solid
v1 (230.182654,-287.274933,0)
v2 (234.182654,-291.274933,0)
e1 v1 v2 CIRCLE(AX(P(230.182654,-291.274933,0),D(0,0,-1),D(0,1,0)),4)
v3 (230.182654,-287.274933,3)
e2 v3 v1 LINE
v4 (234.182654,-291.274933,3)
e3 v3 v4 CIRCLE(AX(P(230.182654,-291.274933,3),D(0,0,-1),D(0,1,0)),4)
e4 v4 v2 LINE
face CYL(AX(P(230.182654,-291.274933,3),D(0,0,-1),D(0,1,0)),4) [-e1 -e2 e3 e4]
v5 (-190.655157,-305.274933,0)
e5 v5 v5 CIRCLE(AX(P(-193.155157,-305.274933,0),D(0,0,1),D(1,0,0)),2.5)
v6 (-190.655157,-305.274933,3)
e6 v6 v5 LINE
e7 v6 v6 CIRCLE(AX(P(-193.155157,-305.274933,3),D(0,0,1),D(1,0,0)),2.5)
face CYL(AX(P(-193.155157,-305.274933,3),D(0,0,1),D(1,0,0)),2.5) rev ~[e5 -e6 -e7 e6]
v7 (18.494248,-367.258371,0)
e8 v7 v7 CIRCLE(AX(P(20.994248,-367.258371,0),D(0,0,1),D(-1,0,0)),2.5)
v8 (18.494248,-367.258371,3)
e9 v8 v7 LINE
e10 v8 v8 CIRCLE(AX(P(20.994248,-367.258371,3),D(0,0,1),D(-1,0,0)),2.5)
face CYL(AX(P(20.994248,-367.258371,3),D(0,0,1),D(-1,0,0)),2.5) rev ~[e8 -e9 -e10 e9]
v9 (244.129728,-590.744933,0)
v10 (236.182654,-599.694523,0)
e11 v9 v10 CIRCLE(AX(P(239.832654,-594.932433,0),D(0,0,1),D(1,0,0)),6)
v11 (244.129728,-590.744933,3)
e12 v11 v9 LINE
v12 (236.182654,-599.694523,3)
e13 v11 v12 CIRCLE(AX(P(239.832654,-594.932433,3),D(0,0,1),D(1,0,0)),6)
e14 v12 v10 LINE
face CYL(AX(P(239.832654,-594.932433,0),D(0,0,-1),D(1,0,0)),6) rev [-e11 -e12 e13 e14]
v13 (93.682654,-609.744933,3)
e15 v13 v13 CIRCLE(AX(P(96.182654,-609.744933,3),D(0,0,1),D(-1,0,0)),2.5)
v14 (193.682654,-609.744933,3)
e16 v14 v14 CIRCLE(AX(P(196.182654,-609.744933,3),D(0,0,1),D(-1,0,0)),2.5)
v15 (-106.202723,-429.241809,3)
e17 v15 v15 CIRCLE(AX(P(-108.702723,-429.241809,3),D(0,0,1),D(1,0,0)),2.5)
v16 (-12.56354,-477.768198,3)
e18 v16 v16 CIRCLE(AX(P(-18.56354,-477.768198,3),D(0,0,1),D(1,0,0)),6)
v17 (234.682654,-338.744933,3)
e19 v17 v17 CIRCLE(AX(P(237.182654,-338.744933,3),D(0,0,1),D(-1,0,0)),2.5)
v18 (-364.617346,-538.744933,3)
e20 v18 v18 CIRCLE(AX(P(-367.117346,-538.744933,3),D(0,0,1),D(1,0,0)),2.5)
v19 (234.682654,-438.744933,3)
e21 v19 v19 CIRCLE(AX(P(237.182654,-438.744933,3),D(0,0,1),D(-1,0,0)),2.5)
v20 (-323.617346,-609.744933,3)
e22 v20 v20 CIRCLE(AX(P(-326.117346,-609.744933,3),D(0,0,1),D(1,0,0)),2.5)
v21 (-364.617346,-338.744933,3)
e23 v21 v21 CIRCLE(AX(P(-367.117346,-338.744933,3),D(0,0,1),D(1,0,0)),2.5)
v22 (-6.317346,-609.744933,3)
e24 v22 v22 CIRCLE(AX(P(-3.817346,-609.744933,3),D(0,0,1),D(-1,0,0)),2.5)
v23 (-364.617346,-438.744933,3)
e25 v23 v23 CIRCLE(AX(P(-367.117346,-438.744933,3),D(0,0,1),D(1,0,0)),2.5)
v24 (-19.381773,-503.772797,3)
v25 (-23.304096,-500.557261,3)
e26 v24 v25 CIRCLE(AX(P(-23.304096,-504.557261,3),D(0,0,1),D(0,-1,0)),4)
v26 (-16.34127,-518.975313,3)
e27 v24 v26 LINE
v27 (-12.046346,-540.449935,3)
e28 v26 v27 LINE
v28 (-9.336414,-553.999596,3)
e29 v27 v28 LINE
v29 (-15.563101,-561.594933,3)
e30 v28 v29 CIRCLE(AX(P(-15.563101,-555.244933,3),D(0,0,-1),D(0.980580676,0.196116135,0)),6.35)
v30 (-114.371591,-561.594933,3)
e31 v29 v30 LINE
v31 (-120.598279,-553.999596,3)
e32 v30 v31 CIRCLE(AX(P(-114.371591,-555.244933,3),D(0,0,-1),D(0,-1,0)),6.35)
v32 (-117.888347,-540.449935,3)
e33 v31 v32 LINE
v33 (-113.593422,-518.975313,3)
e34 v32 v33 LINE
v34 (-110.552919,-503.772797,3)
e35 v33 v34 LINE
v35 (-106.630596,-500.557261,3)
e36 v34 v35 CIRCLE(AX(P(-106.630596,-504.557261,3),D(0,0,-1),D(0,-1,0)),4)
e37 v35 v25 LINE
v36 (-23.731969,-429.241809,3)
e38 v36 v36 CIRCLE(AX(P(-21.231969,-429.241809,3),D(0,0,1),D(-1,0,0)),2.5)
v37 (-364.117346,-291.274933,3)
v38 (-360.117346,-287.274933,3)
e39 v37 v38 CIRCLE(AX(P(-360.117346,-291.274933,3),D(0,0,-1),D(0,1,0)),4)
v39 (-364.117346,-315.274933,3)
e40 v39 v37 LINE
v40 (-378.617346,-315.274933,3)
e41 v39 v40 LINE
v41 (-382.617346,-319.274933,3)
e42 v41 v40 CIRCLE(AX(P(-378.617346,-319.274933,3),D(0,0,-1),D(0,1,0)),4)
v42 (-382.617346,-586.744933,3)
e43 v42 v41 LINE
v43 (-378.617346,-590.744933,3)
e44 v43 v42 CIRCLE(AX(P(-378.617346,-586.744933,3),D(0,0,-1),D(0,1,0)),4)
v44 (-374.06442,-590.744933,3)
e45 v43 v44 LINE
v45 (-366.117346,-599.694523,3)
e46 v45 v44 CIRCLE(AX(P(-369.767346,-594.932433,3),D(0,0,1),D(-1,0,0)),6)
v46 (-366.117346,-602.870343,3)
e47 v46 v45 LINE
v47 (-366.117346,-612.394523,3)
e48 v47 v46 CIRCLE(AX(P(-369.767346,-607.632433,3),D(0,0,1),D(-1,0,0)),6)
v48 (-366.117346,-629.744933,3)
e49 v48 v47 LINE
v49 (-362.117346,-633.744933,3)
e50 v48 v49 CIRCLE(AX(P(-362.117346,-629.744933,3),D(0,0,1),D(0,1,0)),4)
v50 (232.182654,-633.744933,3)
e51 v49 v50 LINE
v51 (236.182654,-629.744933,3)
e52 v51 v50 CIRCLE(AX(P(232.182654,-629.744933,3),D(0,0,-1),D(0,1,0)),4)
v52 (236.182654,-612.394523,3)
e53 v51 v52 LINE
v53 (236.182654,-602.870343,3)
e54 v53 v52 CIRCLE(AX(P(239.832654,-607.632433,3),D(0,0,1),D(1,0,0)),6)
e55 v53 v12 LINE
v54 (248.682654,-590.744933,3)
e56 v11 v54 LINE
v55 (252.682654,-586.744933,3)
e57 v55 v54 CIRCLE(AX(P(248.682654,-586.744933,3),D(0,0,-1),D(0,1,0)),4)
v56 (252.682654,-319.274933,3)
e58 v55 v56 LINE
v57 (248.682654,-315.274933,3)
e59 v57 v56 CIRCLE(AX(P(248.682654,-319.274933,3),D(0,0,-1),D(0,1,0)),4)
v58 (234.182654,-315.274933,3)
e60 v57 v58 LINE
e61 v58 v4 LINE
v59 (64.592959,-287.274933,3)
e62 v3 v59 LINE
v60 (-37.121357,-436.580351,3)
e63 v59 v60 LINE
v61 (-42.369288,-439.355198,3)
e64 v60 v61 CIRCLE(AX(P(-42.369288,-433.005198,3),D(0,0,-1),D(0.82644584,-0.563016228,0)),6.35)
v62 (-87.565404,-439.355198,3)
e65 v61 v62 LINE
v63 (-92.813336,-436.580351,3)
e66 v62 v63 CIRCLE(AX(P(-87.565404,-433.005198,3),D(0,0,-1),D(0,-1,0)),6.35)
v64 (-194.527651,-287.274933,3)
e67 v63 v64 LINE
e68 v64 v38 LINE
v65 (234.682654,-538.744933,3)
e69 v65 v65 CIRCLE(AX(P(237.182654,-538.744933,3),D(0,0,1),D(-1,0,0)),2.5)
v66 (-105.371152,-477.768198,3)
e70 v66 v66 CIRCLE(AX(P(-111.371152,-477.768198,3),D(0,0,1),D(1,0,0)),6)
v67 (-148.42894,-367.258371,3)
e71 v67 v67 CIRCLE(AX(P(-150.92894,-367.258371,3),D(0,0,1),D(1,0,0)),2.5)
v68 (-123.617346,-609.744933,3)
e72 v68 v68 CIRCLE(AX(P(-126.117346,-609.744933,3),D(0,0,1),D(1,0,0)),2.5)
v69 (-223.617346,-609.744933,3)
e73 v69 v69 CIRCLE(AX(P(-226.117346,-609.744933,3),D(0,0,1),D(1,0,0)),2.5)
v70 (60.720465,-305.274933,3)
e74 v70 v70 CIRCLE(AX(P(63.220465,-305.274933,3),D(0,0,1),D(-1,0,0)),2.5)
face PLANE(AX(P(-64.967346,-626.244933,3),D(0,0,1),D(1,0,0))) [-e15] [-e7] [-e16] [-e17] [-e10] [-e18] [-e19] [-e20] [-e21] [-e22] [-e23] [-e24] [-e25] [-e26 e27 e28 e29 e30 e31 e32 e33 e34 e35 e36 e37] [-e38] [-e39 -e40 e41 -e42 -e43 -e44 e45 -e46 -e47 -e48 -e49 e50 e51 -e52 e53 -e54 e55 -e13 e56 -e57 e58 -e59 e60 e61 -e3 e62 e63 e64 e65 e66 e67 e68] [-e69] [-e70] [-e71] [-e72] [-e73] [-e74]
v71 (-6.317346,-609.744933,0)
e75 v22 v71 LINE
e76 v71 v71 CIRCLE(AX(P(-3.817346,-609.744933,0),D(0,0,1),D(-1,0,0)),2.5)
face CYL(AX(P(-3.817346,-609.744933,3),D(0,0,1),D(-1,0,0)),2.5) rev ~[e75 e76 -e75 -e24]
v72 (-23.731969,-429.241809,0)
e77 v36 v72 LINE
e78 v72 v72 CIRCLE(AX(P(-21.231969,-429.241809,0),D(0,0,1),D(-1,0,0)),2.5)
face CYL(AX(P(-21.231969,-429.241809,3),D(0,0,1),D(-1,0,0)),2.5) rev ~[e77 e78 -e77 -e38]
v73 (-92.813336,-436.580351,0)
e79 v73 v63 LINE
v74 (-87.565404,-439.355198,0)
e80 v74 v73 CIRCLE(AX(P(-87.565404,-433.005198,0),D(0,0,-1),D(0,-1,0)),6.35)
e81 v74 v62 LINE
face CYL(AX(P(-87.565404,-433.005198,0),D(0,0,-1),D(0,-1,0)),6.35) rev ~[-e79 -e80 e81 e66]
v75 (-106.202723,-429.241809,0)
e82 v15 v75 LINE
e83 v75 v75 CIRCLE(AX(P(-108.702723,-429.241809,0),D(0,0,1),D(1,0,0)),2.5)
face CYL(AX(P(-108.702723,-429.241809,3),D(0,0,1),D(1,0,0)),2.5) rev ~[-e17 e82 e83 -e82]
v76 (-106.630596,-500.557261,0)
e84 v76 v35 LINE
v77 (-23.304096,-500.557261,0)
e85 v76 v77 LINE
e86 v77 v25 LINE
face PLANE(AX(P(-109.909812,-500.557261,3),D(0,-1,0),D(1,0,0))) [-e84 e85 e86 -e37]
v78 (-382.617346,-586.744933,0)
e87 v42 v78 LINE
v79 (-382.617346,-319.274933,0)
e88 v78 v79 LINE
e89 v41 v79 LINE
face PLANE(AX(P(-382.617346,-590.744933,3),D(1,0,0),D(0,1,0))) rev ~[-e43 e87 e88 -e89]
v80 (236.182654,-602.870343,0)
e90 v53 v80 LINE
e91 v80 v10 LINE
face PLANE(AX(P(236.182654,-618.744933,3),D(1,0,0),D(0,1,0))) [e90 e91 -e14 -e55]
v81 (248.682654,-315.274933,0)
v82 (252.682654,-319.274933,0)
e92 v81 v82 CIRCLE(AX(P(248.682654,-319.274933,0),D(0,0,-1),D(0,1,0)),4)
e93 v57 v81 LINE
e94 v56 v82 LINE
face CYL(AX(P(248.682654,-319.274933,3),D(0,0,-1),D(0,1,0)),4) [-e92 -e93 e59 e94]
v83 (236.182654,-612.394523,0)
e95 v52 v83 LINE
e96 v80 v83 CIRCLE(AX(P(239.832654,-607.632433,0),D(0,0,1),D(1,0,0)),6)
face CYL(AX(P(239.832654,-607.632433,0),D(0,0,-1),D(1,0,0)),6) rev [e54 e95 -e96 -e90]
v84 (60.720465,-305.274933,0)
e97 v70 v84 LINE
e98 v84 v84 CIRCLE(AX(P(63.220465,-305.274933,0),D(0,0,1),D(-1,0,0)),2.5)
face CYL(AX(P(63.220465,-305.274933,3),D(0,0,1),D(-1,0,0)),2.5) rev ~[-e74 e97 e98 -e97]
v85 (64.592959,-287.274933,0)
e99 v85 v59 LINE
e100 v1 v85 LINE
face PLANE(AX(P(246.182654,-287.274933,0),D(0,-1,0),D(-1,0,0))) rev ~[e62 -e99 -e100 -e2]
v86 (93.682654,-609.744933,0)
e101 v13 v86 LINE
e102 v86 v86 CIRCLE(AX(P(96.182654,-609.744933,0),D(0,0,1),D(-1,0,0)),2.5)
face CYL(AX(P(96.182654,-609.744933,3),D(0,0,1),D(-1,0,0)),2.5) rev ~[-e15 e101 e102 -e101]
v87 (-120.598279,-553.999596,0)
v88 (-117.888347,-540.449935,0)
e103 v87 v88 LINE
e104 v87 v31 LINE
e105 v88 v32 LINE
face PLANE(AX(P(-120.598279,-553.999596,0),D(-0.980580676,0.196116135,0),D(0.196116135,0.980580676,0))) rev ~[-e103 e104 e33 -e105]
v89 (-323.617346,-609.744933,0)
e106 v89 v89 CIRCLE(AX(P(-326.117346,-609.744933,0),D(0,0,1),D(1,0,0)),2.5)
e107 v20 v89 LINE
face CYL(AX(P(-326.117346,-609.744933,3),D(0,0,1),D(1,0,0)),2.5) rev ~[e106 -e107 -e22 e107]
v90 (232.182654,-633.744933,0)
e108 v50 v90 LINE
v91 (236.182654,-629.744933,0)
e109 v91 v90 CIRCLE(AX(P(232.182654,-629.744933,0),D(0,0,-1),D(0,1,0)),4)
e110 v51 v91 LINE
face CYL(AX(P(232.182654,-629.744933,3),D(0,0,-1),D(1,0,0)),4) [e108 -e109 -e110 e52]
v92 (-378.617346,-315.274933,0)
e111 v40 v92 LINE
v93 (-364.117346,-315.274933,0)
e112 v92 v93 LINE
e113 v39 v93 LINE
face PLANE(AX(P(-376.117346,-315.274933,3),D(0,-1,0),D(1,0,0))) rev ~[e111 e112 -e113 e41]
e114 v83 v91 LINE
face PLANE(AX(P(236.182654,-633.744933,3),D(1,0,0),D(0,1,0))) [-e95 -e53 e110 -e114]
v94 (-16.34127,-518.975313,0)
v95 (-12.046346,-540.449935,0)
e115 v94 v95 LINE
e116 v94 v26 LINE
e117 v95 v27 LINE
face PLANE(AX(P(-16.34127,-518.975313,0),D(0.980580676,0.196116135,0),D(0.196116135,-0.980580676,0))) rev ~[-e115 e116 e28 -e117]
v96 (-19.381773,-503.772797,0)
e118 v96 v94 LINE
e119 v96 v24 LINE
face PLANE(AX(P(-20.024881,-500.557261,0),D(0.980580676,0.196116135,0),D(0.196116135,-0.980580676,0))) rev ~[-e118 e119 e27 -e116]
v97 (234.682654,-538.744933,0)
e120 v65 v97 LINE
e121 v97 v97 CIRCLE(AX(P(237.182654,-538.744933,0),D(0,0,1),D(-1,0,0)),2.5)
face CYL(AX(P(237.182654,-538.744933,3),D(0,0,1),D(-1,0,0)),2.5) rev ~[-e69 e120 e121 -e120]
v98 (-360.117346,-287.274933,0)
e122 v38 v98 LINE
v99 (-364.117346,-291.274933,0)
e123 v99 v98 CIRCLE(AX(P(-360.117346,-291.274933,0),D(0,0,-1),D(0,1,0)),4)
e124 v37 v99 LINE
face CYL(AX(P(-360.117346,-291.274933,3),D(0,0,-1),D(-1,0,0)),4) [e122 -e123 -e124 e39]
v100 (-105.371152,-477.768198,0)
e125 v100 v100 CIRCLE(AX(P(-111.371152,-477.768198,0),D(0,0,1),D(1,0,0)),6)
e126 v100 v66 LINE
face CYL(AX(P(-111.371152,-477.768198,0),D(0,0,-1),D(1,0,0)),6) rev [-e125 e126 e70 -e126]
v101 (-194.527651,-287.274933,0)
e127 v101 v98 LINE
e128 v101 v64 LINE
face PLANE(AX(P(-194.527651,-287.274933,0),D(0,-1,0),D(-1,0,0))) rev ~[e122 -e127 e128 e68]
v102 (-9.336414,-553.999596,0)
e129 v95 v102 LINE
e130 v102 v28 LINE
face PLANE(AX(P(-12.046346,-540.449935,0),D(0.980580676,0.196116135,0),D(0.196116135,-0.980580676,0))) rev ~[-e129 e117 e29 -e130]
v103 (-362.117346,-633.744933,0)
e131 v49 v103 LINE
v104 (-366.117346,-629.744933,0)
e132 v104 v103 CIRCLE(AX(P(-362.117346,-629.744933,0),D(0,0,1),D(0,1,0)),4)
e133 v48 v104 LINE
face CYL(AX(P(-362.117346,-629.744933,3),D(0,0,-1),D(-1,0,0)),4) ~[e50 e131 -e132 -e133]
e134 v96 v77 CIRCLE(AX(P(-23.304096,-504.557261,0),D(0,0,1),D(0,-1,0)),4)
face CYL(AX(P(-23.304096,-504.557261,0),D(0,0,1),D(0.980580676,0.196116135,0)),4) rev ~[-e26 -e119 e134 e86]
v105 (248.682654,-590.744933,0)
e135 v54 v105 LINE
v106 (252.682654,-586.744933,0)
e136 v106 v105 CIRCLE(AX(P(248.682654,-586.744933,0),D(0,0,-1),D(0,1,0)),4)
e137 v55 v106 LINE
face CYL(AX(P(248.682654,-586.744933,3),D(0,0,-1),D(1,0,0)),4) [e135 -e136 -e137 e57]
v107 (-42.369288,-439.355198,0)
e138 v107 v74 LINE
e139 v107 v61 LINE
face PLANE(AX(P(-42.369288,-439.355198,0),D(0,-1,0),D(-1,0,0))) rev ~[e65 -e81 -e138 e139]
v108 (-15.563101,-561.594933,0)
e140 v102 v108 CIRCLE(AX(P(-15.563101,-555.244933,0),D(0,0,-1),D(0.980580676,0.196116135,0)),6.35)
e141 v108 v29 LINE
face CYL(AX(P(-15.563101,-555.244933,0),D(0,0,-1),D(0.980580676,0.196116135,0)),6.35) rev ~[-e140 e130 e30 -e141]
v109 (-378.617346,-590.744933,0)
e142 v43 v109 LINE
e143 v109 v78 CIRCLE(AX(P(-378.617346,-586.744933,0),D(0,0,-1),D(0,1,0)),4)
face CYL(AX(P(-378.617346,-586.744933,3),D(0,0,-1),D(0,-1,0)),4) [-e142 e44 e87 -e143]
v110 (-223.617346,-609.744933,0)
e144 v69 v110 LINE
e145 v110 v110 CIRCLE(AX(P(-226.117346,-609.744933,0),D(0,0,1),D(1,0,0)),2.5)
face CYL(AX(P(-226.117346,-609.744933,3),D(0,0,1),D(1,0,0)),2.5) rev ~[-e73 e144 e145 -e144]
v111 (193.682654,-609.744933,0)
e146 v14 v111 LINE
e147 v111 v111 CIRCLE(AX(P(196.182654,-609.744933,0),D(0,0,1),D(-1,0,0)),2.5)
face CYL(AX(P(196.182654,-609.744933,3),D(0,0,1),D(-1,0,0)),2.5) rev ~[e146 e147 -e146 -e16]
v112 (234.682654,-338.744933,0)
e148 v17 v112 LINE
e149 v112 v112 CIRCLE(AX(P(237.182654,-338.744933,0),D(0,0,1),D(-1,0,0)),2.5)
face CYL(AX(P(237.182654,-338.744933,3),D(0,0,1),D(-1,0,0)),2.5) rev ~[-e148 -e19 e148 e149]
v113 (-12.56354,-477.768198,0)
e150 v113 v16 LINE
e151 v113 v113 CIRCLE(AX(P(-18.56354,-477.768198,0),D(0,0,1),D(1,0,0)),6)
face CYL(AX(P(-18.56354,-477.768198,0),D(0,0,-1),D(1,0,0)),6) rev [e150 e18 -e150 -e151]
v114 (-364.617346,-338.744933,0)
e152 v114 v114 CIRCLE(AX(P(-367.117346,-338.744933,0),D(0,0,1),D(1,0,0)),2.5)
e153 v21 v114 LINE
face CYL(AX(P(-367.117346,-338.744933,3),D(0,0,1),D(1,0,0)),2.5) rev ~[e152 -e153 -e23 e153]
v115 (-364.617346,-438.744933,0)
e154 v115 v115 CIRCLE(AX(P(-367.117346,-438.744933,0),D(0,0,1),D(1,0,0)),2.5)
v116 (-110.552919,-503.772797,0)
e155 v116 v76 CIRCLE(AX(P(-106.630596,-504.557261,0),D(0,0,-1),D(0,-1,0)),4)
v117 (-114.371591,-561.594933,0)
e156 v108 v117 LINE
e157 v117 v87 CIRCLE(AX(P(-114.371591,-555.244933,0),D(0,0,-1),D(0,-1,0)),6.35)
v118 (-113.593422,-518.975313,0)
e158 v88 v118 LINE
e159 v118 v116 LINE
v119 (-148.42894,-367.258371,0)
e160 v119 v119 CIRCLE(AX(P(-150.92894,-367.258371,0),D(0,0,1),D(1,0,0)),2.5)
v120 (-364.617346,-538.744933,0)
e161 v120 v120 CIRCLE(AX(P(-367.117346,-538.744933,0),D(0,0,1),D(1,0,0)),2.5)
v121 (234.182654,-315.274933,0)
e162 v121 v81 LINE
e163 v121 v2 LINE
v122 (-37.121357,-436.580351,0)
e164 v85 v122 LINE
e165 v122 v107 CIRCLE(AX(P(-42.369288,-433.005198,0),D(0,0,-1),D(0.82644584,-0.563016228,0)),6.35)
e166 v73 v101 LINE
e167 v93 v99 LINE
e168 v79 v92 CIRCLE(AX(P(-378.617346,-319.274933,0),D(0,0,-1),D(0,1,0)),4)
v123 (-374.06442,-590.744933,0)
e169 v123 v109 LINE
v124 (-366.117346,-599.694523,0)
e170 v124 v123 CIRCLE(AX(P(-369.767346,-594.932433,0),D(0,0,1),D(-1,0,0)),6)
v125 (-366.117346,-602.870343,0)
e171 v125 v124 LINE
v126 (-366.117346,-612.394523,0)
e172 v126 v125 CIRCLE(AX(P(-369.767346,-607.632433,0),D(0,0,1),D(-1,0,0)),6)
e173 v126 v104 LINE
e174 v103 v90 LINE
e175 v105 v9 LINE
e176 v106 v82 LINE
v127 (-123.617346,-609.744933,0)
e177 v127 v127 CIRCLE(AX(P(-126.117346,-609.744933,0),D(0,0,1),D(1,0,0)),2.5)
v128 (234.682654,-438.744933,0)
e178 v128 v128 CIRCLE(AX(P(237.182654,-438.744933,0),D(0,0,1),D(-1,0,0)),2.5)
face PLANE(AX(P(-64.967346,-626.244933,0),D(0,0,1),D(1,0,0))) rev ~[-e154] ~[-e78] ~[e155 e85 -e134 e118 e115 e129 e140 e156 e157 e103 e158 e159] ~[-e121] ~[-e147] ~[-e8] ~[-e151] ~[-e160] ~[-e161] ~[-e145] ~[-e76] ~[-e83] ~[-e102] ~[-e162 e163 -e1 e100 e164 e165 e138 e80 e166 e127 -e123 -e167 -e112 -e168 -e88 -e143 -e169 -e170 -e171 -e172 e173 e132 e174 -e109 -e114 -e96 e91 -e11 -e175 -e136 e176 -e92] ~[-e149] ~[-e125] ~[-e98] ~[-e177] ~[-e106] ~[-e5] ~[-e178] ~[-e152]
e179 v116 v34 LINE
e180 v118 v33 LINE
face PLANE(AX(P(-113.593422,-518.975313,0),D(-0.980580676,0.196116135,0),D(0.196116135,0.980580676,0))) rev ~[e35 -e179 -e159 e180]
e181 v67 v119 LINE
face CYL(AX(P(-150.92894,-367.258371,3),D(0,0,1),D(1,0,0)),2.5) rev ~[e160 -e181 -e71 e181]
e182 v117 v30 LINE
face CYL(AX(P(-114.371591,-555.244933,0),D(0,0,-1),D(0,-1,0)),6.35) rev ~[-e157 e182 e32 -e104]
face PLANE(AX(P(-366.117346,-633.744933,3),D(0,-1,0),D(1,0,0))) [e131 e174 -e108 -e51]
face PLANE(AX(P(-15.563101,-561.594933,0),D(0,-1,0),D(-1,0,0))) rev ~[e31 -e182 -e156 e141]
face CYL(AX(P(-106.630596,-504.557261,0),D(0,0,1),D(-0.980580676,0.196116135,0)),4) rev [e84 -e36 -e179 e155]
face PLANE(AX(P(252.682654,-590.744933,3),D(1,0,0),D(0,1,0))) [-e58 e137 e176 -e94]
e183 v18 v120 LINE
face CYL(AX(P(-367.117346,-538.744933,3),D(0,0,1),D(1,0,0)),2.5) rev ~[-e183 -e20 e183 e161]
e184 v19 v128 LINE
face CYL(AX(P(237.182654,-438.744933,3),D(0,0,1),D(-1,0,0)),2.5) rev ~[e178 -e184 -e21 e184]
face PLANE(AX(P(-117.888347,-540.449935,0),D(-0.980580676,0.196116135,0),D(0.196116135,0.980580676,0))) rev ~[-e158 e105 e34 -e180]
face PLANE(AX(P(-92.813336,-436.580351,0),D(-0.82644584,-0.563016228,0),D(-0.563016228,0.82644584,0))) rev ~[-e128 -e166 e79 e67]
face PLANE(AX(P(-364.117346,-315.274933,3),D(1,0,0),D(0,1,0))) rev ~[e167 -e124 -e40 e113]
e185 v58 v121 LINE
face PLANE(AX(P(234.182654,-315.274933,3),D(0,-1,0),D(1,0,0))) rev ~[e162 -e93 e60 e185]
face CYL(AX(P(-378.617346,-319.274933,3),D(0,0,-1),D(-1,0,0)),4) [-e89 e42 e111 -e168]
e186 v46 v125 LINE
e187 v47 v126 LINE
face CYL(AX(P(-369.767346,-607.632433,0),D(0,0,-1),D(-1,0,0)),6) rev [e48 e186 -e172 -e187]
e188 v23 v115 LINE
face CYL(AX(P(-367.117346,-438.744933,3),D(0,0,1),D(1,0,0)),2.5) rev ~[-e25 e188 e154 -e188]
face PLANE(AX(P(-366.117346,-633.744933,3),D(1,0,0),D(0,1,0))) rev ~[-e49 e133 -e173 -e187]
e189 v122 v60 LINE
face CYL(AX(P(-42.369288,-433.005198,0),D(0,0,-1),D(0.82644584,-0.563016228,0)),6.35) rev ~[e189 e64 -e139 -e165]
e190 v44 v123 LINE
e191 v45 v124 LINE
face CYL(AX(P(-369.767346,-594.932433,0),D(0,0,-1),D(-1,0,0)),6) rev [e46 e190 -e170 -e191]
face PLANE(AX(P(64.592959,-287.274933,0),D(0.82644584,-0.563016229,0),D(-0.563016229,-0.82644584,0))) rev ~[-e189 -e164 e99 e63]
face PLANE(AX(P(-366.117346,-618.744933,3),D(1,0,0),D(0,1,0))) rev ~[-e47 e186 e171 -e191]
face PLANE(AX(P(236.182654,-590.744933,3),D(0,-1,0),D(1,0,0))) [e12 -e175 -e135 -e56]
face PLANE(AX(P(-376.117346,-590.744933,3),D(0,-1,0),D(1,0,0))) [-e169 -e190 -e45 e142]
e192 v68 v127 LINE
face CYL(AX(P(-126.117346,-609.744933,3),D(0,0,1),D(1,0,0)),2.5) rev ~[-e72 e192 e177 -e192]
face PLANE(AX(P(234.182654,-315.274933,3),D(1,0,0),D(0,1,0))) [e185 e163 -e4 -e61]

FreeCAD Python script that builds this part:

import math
import FreeCAD as App
import Part
import Sketcher

V = App.Vector
Q = App.Units.Quantity


def edges_at(feature, points):
    """Names of the edges that pass closest to the given points."""
    edges = feature.Shape.Edges
    near = lambda p: min(range(len(edges)), key=lambda i: edges[i].distToShape(Part.Vertex(*p))[0])
    return sorted({f"Edge{near(p) + 1}" for p in points})


def add_polygon(sketch, points):
    """Adds a closed chain of lines whose ends are joined by coincident constraints."""
    first, n = sketch.GeometryCount, len(points)
    for a, b in zip(points, points[1:] + points[:1]):
        sketch.addGeometry(Part.LineSegment(App.Vector(*a, 0), App.Vector(*b, 0)), False)
    for i in range(n):
        sketch.addConstraint(Sketcher.Constraint("Coincident", first + i, 2, first + (i + 1) % n, 1))

doc = App.newDocument("Part")
params = doc.addObject("Spreadsheet::Sheet", "Params")
for row, (alias, value) in enumerate([
    ("sketch1_diameter", "12 mm"),
    ("sketch1_radius", "6.35 mm"),
    ("sketch1_width", "609.6 mm"),
    ("sketch1_height", "325.12 mm"),
    ("pad1_length", "3 mm"),
    ("sketch2_diameter", "5 mm"),
    ("sketch2_width", "12 mm"),
    ("sketch2_width2", "10 mm"),
    ("sketch2_height", "28 mm"),
    ("sketch3_width", "6.5 mm"),
    ("sketch3_height", "275.47 mm"),
    ("pad2_length", "3 mm"),
    ("sketch4_height", "15 mm"),
    ("sketch4_width", "602.3 mm"),
    ("pad3_length", "3 mm"),
    ("fillet_radius", "4 mm"),
], start=1):
    params.set(f"A{row}", alias)
    params.set(f"B{row}", "=" + value)
    params.setAlias(f"B{row}", alias)

body = doc.addObject("PartDesign::Body", "Body")

sketch1 = body.newObject("Sketcher::SketchObject", "Sketch")
sketch1.AttachmentSupport = (doc.getObject("XY_Plane"), [""])
sketch1.MapMode = "FlatFace"
sketch1.addGeometry(Part.LineSegment(V(64.6, -287.3, 0), V(-37.1, -436.6, 0)), False)
sketch1.addGeometry(Part.ArcOfCircle(Part.Circle(V(-42.4, -433, 0), V(0, 0, 1), 6.3), math.radians(-90), math.radians(-34)), False)
sketch1.addGeometry(Part.LineSegment(V(-42.4, -439.4, 0), V(-87.6, -439.4, 0)), False)
sketch1.addGeometry(Part.ArcOfCircle(Part.Circle(V(-87.6, -433, 0), V(0, 0, 1), 6.4), math.radians(-146), math.radians(-90)), False)
sketch1.addGeometry(Part.LineSegment(V(-92.8, -436.6, 0), V(-194.5, -287.3, 0)), False)
sketch1.addGeometry(Part.LineSegment(V(-194.5, -287.3, 0), V(-376.1, -287.3, 0)), False)
sketch1.addGeometry(Part.LineSegment(V(-376.1, -287.3, 0), V(-376.1, -612.4, 0)), False)
sketch1.addGeometry(Part.ArcOfCircle(Part.Circle(V(-369.8, -612.4, 0), V(0, 0, 1), 6.3), math.radians(180), math.radians(270)), False)
sketch1.addGeometry(Part.LineSegment(V(-369.8, -618.7, 0), V(239.8, -618.7, 0)), False)
sketch1.addGeometry(Part.ArcOfCircle(Part.Circle(V(239.8, -612.4, 0), V(0, 0, 1), 6.3), math.radians(-90), math.radians(0)), False)
sketch1.addGeometry(Part.LineSegment(V(246.2, -612.4, 0), V(246.2, -287.3, 0)), False)
sketch1.addGeometry(Part.LineSegment(V(246.2, -287.3, 0), V(64.6, -287.3, 0)), False)
sketch1.addGeometry(Part.Circle(V(-369.8, -607.6, 0), V(0, 0, 1), 6), False)
sketch1.addGeometry(Part.Circle(V(-369.8, -594.9, 0), V(0, 0, 1), 6), False)
sketch1.addGeometry(Part.Circle(V(239.8, -607.6, 0), V(0, 0, 1), 6), False)
sketch1.addGeometry(Part.Circle(V(239.8, -594.9, 0), V(0, 0, 1), 6), False)
sketch1.addGeometry(Part.Circle(V(-111.4, -477.8, 0), V(0, 0, 1), 6), False)
sketch1.addGeometry(Part.ArcOfCircle(Part.Circle(V(-114.4, -555.2, 0), V(0, 0, 1), 6.3), math.radians(169), math.radians(270)), False)
sketch1.addGeometry(Part.LineSegment(V(-120.6, -554, 0), V(-117.9, -540.4, 0)), False)
sketch1.addGeometry(Part.LineSegment(V(-117.9, -540.4, 0), V(-113.6, -519, 0)), False)
sketch1.addGeometry(Part.LineSegment(V(-113.6, -519, 0), V(-109.9, -500.6, 0)), False)
sketch1.addGeometry(Part.ArcOfCircle(Part.Circle(V(-103.7, -501.8, 0), V(0, 0, 1), 6.4), math.radians(126), math.radians(169)), False)
sketch1.addGeometry(Part.LineSegment(V(-107.4, -496.6, 0), V(-68.7, -469, 0)), False)
sketch1.addGeometry(Part.ArcOfCircle(Part.Circle(V(-65, -474.1, 0), V(0, 0, 1), 6.3), math.radians(54), math.radians(126)), False)
sketch1.addGeometry(Part.LineSegment(V(-61.3, -469, 0), V(-22.6, -496.6, 0)), False)
sketch1.addGeometry(Part.ArcOfCircle(Part.Circle(V(-26.3, -501.8, 0), V(0, 0, 1), 6.4), math.radians(11), math.radians(54)), False)
sketch1.addGeometry(Part.LineSegment(V(-20, -500.6, 0), V(-16.3, -519, 0)), False)
sketch1.addGeometry(Part.LineSegment(V(-16.3, -519, 0), V(-12, -540.4, 0)), False)
sketch1.addGeometry(Part.LineSegment(V(-12, -540.4, 0), V(-9.3, -554, 0)), False)
sketch1.addGeometry(Part.ArcOfCircle(Part.Circle(V(-15.6, -555.2, 0), V(0, 0, 1), 6.3), math.radians(-90), math.radians(11)), False)
sketch1.addGeometry(Part.LineSegment(V(-15.6, -561.6, 0), V(-114.4, -561.6, 0)), False)
sketch1.addGeometry(Part.Circle(V(-18.6, -477.8, 0), V(0, 0, 1), 6), False)
sketch1.addConstraint(Sketcher.Constraint("Tangent", 0, 2, 1, 2))
sketch1.addConstraint(Sketcher.Constraint("Tangent", 1, 1, 2, 1))
sketch1.addConstraint(Sketcher.Constraint("Tangent", 2, 2, 3, 2))
sketch1.addConstraint(Sketcher.Constraint("Tangent", 3, 1, 4, 1))
sketch1.addConstraint(Sketcher.Constraint("Coincident", 4, 2, 5, 1))
sketch1.addConstraint(Sketcher.Constraint("Coincident", 5, 2, 6, 1))
sketch1.addConstraint(Sketcher.Constraint("Tangent", 6, 2, 7, 1))
sketch1.addConstraint(Sketcher.Constraint("Tangent", 7, 2, 8, 1))
sketch1.addConstraint(Sketcher.Constraint("Tangent", 8, 2, 9, 1))
sketch1.addConstraint(Sketcher.Constraint("Tangent", 9, 2, 10, 1))
sketch1.addConstraint(Sketcher.Constraint("Coincident", 10, 2, 11, 1))
sketch1.addConstraint(Sketcher.Constraint("Coincident", 11, 2, 0, 1))
sketch1.addConstraint(Sketcher.Constraint("Tangent", 17, 1, 18, 1))
sketch1.addConstraint(Sketcher.Constraint("Coincident", 18, 2, 19, 1))
sketch1.addConstraint(Sketcher.Constraint("Coincident", 19, 2, 20, 1))
sketch1.addConstraint(Sketcher.Constraint("Tangent", 20, 2, 21, 2))
sketch1.addConstraint(Sketcher.Constraint("Tangent", 21, 1, 22, 1))
sketch1.addConstraint(Sketcher.Constraint("Tangent", 22, 2, 23, 2))
sketch1.addConstraint(Sketcher.Constraint("Tangent", 23, 1, 24, 1))
sketch1.addConstraint(Sketcher.Constraint("Tangent", 24, 2, 25, 2))
sketch1.addConstraint(Sketcher.Constraint("Tangent", 25, 1, 26, 1))
sketch1.addConstraint(Sketcher.Constraint("Coincident", 26, 2, 27, 1))
sketch1.addConstraint(Sketcher.Constraint("Coincident", 27, 2, 28, 1))
sketch1.addConstraint(Sketcher.Constraint("Tangent", 28, 2, 29, 2))
sketch1.addConstraint(Sketcher.Constraint("Tangent", 29, 1, 30, 1))
sketch1.addConstraint(Sketcher.Constraint("Tangent", 30, 2, 17, 2))
sketch1.addConstraint(Sketcher.Constraint("Horizontal", 2))
sketch1.addConstraint(Sketcher.Constraint("Horizontal", 5))
sketch1.addConstraint(Sketcher.Constraint("Vertical", 6))
sketch1.addConstraint(Sketcher.Constraint("Horizontal", 8))
sketch1.addConstraint(Sketcher.Constraint("Vertical", 10))
sketch1.addConstraint(Sketcher.Constraint("Horizontal", 11))
sketch1.addConstraint(Sketcher.Constraint("Horizontal", 30))
sketch1.addConstraint(Sketcher.Constraint("Equal", 1, 3))
sketch1.addConstraint(Sketcher.Constraint("Equal", 3, 7))
sketch1.addConstraint(Sketcher.Constraint("Equal", 7, 9))
sketch1.addConstraint(Sketcher.Constraint("Equal", 12, 13))
sketch1.addConstraint(Sketcher.Constraint("Equal", 13, 14))
sketch1.addConstraint(Sketcher.Constraint("Equal", 14, 15))
sketch1.addConstraint(Sketcher.Constraint("Equal", 15, 16))
sketch1.addConstraint(Sketcher.Constraint("Equal", 9, 17))
sketch1.addConstraint(Sketcher.Constraint("Equal", 17, 21))
sketch1.addConstraint(Sketcher.Constraint("Equal", 21, 23))
sketch1.addConstraint(Sketcher.Constraint("Equal", 23, 25))
sketch1.addConstraint(Sketcher.Constraint("Equal", 25, 29))
sketch1.addConstraint(Sketcher.Constraint("Equal", 16, 31))
sketch1.addConstraint(Sketcher.Constraint("Parallel", 18, 19))
sketch1.addConstraint(Sketcher.Constraint("Parallel", 19, 20))
sketch1.addConstraint(Sketcher.Constraint("Parallel", 26, 27))
sketch1.addConstraint(Sketcher.Constraint("Parallel", 27, 28))
sketch1.addConstraint(Sketcher.Constraint("Horizontal", 12, 3, 14, 3))
sketch1.addConstraint(Sketcher.Constraint("Horizontal", 13, 3, 15, 3))
sketch1.addConstraint(Sketcher.Constraint("Horizontal", 21, 3, 25, 3))
sketch1.addConstraint(Sketcher.Constraint("Horizontal", 16, 3, 31, 3))
sketch1.addConstraint(Sketcher.Constraint("Horizontal", 0, 2, 3, 1))
sketch1.addConstraint(Sketcher.Constraint("Horizontal", 5, 2, 10, 2))
sketch1.addConstraint(Sketcher.Constraint("Horizontal", 22, 2, 23, 1))
sketch1.addConstraint(Sketcher.Constraint("Horizontal", 20, 2, 25, 1))
sketch1.addConstraint(Sketcher.Constraint("Horizontal", 19, 2, 26, 2))
sketch1.addConstraint(Sketcher.Constraint("Horizontal", 18, 2, 27, 2))
sketch1.addConstraint(Sketcher.Constraint("Vertical", 7, 3, 12, 3))
sketch1.addConstraint(Sketcher.Constraint("Vertical", 12, 3, 13, 3))
sketch1.addConstraint(Sketcher.Constraint("Vertical", 9, 3, 14, 3))
sketch1.addConstraint(Sketcher.Constraint("Vertical", 14, 3, 15, 3))
sketch1.addConstraint(Sketcher.Constraint("Equal", 5, 11))
sketch1.addConstraint(Sketcher.Constraint("Diameter", 12, Q("12 mm")))
sketch1.addConstraint(Sketcher.Constraint("Radius", 1, Q("6.35 mm")))
sketch1.addConstraint(Sketcher.Constraint("DistanceX", 8, 1, 8, 2, Q("609.6 mm")))
sketch1.addConstraint(Sketcher.Constraint("DistanceY", 6, 2, 6, 1, Q("325.12 mm")))
sketch1.addConstraint(Sketcher.Constraint("DistanceY", 12, 3, 13, 3, Q("12.7 mm")))
sketch1.addConstraint(Sketcher.Constraint("DistanceY", 7, 2, 17, 3, Q("63.5 mm")))
sketch1.addConstraint(Sketcher.Constraint("DistanceY", 16, 3, 3, 3, Q("44.763 mm")))
sketch1.addConstraint(Sketcher.Constraint("DistanceX", 18, 2, 23, 3, Q("52.921 mm")))
sketch1.addConstraint(Sketcher.Constraint("Distance", 20, Q("18.782802 mm")))
sketch1.addConstraint(Sketcher.Constraint("DistanceX", 30, 2, 30, 1, Q("98.80849 mm")))
sketch1.addConstraint(Sketcher.Constraint("DistanceY", 21, 3, -1, 1, Q("501.802599 mm")))
sketch1.addConstraint(Sketcher.Constraint("DistanceX", 29, 3, -1, 1, Q("15.563101 mm")))
sketch1.addConstraint(Sketcher.Constraint("DistanceY", 7, 3, 12, 3, Q("4.7625 mm")))
sketch1.addConstraint(Sketcher.Constraint("DistanceY", 21, 3, 16, 3, Q("24.034401 mm")))
sketch1.addConstraint(Sketcher.Constraint("DistanceX", 4, 2, 16, 3, Q("83.156499 mm")))
sketch1.addConstraint(Sketcher.Constraint("DistanceX", 31, 3, 11, 2, Q("83.156499 mm")))
sketch1.addConstraint(Sketcher.Constraint("DistanceY", 17, 1, 16, 3, Q("76.231398 mm")))
sketch1.addConstraint(Sketcher.Constraint("Distance", 0, Q("180.659652 mm")))
sketch1.addConstraint(Sketcher.Constraint("Distance", 22, Q("47.57796 mm")))
sketch1.addConstraint(Sketcher.Constraint("DistanceX", 2, 2, 2, 1, Q("45.196117 mm")))
sketch1.addConstraint(Sketcher.Constraint("DistanceX", 5, 2, 5, 1, Q("181.589695 mm")))
sketch1.addConstraint(Sketcher.Constraint("DistanceX", 31, 3, -1, 1, Q("18.56354 mm")))
sketch1.setExpression("Constraints[65]", "Params.sketch1_diameter")
sketch1.setExpression("Constraints[66]", "Params.sketch1_radius")
sketch1.setExpression("Constraints[67]", "Params.sketch1_width")
sketch1.setExpression("Constraints[68]", "Params.sketch1_height")
pad1 = body.newObject("PartDesign::Pad", "Pad")
pad1.Profile = sketch1
pad1.setExpression("Length", "Params.pad1_length")

sketch2 = body.newObject("Sketcher::SketchObject", "Sketch001")
sketch2.AttachmentSupport = (doc.getObject("XY_Plane"), [""])
sketch2.MapMode = "FlatFace"
sketch2.AttachmentOffset = App.Placement(V(0, 0, 3), App.Rotation())
sketch2.addGeometry(Part.Circle(V(-193.2, -305.3, 0), V(0, 0, 1), 2.5), False)
sketch2.addGeometry(Part.Circle(V(-108.7, -429.2, 0), V(0, 0, 1), 2.5), False)
sketch2.addGeometry(Part.Circle(V(-150.9, -367.3, 0), V(0, 0, 1), 2.5), False)
sketch2.addGeometry(Part.Circle(V(-326.1, -609.7, 0), V(0, 0, 1), 2.5), False)
sketch2.addGeometry(Part.Circle(V(-367.1, -338.7, 0), V(0, 0, 1), 2.5), False)
sketch2.addGeometry(Part.Circle(V(-367.1, -538.7, 0), V(0, 0, 1), 2.5), False)
sketch2.addGeometry(Part.Circle(V(-367.1, -438.7, 0), V(0, 0, 1), 2.5), False)
sketch2.addGeometry(Part.Circle(V(-126.1, -609.7, 0), V(0, 0, 1), 2.5), False)
sketch2.addGeometry(Part.Circle(V(-226.1, -609.7, 0), V(0, 0, 1), 2.5), False)
sketch2.addGeometry(Part.Circle(V(-21.2, -429.2, 0), V(0, 0, 1), 2.5), False)
sketch2.addGeometry(Part.Circle(V(21, -367.3, 0), V(0, 0, 1), 2.5), False)
sketch2.addGeometry(Part.Circle(V(63.2, -305.3, 0), V(0, 0, 1), 2.5), False)
sketch2.addGeometry(Part.Circle(V(237.2, -338.7, 0), V(0, 0, 1), 2.5), False)
sketch2.addGeometry(Part.Circle(V(237.2, -438.7, 0), V(0, 0, 1), 2.5), False)
sketch2.addGeometry(Part.Circle(V(237.2, -538.7, 0), V(0, 0, 1), 2.5), False)
sketch2.addGeometry(Part.Circle(V(196.2, -609.7, 0), V(0, 0, 1), 2.5), False)
sketch2.addGeometry(Part.Circle(V(96.2, -609.7, 0), V(0, 0, 1), 2.5), False)
sketch2.addGeometry(Part.Circle(V(-3.8, -609.7, 0), V(0, 0, 1), 2.5), False)
add_polygon(sketch2, [(234.2, -287.3), (234.2, -315.3), (246.2, -315.3), (246.2, -287.3)])
add_polygon(sketch2, [(-376.1, -287.3), (-376.1, -315.3), (-364.1, -315.3), (-364.1, -287.3)])
add_polygon(sketch2, [(-376.1, -590.7), (-376.1, -618.7), (-366.1, -618.7), (-366.1, -590.7)])
add_polygon(sketch2, [(236.2, -590.7), (236.2, -618.7), (246.2, -618.7), (246.2, -590.7)])
sketch2.addConstraint(Sketcher.Constraint("Vertical", 18))
sketch2.addConstraint(Sketcher.Constraint("Horizontal", 19))
sketch2.addConstraint(Sketcher.Constraint("Vertical", 20))
sketch2.addConstraint(Sketcher.Constraint("Horizontal", 21))
sketch2.addConstraint(Sketcher.Constraint("Vertical", 22))
sketch2.addConstraint(Sketcher.Constraint("Horizontal", 23))
sketch2.addConstraint(Sketcher.Constraint("Vertical", 24))
sketch2.addConstraint(Sketcher.Constraint("Horizontal", 25))
sketch2.addConstraint(Sketcher.Constraint("Vertical", 26))
sketch2.addConstraint(Sketcher.Constraint("Horizontal", 27))
sketch2.addConstraint(Sketcher.Constraint("Vertical", 28))
sketch2.addConstraint(Sketcher.Constraint("Horizontal", 29))
sketch2.addConstraint(Sketcher.Constraint("Vertical", 30))
sketch2.addConstraint(Sketcher.Constraint("Horizontal", 31))
sketch2.addConstraint(Sketcher.Constraint("Vertical", 32))
sketch2.addConstraint(Sketcher.Constraint("Horizontal", 33))
sketch2.addConstraint(Sketcher.Constraint("Equal", 0, 1))
sketch2.addConstraint(Sketcher.Constraint("Equal", 1, 2))
sketch2.addConstraint(Sketcher.Constraint("Equal", 2, 3))
sketch2.addConstraint(Sketcher.Constraint("Equal", 3, 4))
sketch2.addConstraint(Sketcher.Constraint("Equal", 4, 5))
sketch2.addConstraint(Sketcher.Constraint("Equal", 5, 6))
sketch2.addConstraint(Sketcher.Constraint("Equal", 6, 7))
sketch2.addConstraint(Sketcher.Constraint("Equal", 7, 8))
sketch2.addConstraint(Sketcher.Constraint("Equal", 8, 9))
sketch2.addConstraint(Sketcher.Constraint("Equal", 9, 10))
sketch2.addConstraint(Sketcher.Constraint("Equal", 10, 11))
sketch2.addConstraint(Sketcher.Constraint("Equal", 11, 12))
sketch2.addConstraint(Sketcher.Constraint("Equal", 12, 13))
sketch2.addConstraint(Sketcher.Constraint("Equal", 13, 14))
sketch2.addConstraint(Sketcher.Constraint("Equal", 14, 15))
sketch2.addConstraint(Sketcher.Constraint("Equal", 15, 16))
sketch2.addConstraint(Sketcher.Constraint("Equal", 16, 17))
sketch2.addConstraint(Sketcher.Constraint("Horizontal", 3, 3, 7, 3))
sketch2.addConstraint(Sketcher.Constraint("Horizontal", 7, 3, 8, 3))
sketch2.addConstraint(Sketcher.Constraint("Horizontal", 1, 3, 9, 3))
sketch2.addConstraint(Sketcher.Constraint("Horizontal", 2, 3, 10, 3))
sketch2.addConstraint(Sketcher.Constraint("Horizontal", 0, 3, 11, 3))
sketch2.addConstraint(Sketcher.Constraint("Horizontal", 4, 3, 12, 3))
sketch2.addConstraint(Sketcher.Constraint("Horizontal", 6, 3, 13, 3))
sketch2.addConstraint(Sketcher.Constraint("Horizontal", 5, 3, 14, 3))
sketch2.addConstraint(Sketcher.Constraint("Horizontal", 8, 3, 15, 3))
sketch2.addConstraint(Sketcher.Constraint("Horizontal", 15, 3, 16, 3))
sketch2.addConstraint(Sketcher.Constraint("Horizontal", 16, 3, 17, 3))
sketch2.addConstraint(Sketcher.Constraint("Horizontal", 19, 2, 22, 2))
sketch2.addConstraint(Sketcher.Constraint("Horizontal", 21, 2, 24, 2))
sketch2.addConstraint(Sketcher.Constraint("Horizontal", 27, 2, 30, 2))
sketch2.addConstraint(Sketcher.Constraint("Horizontal", 29, 2, 32, 2))
sketch2.addConstraint(Sketcher.Constraint("Vertical", 4, 3, 5, 3))
sketch2.addConstraint(Sketcher.Constraint("Vertical", 5, 3, 6, 3))
sketch2.addConstraint(Sketcher.Constraint("Vertical", 12, 3, 13, 3))
sketch2.addConstraint(Sketcher.Constraint("Vertical", 13, 3, 14, 3))
sketch2.addConstraint(Sketcher.Constraint("Vertical", 25, 2, 26, 2))
sketch2.addConstraint(Sketcher.Constraint("Vertical", 20, 2, 31, 2))
sketch2.addConstraint(Sketcher.Constraint("Equal", 21, 23))
sketch2.addConstraint(Sketcher.Constraint("Equal", 29, 31))
sketch2.addConstraint(Sketcher.Constraint("Equal", 24, 26))
sketch2.addConstraint(Sketcher.Constraint("Diameter", 0, Q("5 mm")))
sketch2.addConstraint(Sketcher.Constraint("DistanceX", 19, 1, 19, 2, Q("12 mm")))
sketch2.addConstraint(Sketcher.Constraint("DistanceX", 27, 1, 27, 2, Q("10 mm")))
sketch2.addConstraint(Sketcher.Constraint("DistanceY", 18, 2, 18, 1, Q("28 mm")))
sketch2.addConstraint(Sketcher.Constraint("DistanceX", 4, 3, 3, 3, Q("41 mm")))
sketch2.addConstraint(Sketcher.Constraint("DistanceY", 3, 3, 4, 3, Q("271 mm")))
sketch2.addConstraint(Sketcher.Constraint("DistanceY", 3, 3, 5, 3, Q("71 mm")))
sketch2.addConstraint(Sketcher.Constraint("DistanceY", 6, 3, 4, 3, Q("100 mm")))
sketch2.addConstraint(Sketcher.Constraint("DistanceX", 3, 3, 7, 3, Q("200 mm")))
sketch2.addConstraint(Sketcher.Constraint("DistanceX", 8, 3, 7, 3, Q("100 mm")))
sketch2.addConstraint(Sketcher.Constraint("DistanceX", 15, 3, 14, 3, Q("41 mm")))
sketch2.addConstraint(Sketcher.Constraint("DistanceX", 16, 3, 15, 3, Q("100 mm")))
sketch2.addConstraint(Sketcher.Constraint("DistanceX", 17, 3, 16, 3, Q("100 mm")))
sketch2.addConstraint(Sketcher.Constraint("DistanceX", 18, 2, 12, 3, Q("3 mm")))
sketch2.addConstraint(Sketcher.Constraint("DistanceY", 18, 2, 11, 3, Q("10 mm")))
sketch2.addConstraint(Sketcher.Constraint("DistanceX", 22, 2, 4, 3, Q("9 mm")))
sketch2.addConstraint(Sketcher.Constraint("DistanceY", 26, 2, 3, 3, Q("9 mm")))
sketch2.addConstraint(Sketcher.Constraint("DistanceX", 7, 3, 16, 3, Q("222.3 mm")))
sketch2.addConstraint(Sketcher.Constraint("DistanceY", 3, 3, 0, 3, Q("304.47 mm")))
sketch2.addConstraint(Sketcher.Constraint("DistanceY", 1, 3, -1, 1, Q("429.241809 mm")))
sketch2.addConstraint(Sketcher.Constraint("DistanceX", 2, 3, -1, 1, Q("150.92894 mm")))
sketch2.addConstraint(Sketcher.Constraint("DistanceY", 2, 3, -1, 1, Q("367.258371 mm")))
sketch2.addConstraint(Sketcher.Constraint("DistanceX", 9, 3, -1, 1, Q("21.231969 mm")))
sketch2.addConstraint(Sketcher.Constraint("DistanceX", 3, 3, 0, 3, Q("132.962189 mm")))
sketch2.addConstraint(Sketcher.Constraint("DistanceY", 2, 3, 4, 3, Q("28.513438 mm")))
sketch2.addConstraint(Sketcher.Constraint("DistanceX", 1, 3, 10, 3, Q("129.69697 mm")))
sketch2.addConstraint(Sketcher.Constraint("DistanceX", 0, 3, 11, 3, Q("256.375622 mm")))
sketch2.addConstraint(Sketcher.Constraint("DistanceX", 0, 3, -1, 1, Q("193.155157 mm")))
sketch2.addConstraint(Sketcher.Constraint("DistanceX", 1, 3, -1, 1, Q("108.702723 mm")))
sketch2.setExpression("Constraints[73]", "Params.sketch2_diameter")
sketch2.setExpression("Constraints[74]", "Params.sketch2_width")
sketch2.setExpression("Constraints[75]", "Params.sketch2_width2")
sketch2.setExpression("Constraints[76]", "Params.sketch2_height")
pocket1 = body.newObject("PartDesign::Pocket", "Pocket")
pocket1.Profile = sketch2
pocket1.Type = "ThroughAll"

sketch3 = body.newObject("Sketcher::SketchObject", "Sketch002")
sketch3.AttachmentSupport = (doc.getObject("XY_Plane"), [""])
sketch3.MapMode = "FlatFace"
sketch3.AttachmentOffset = App.Placement(V(0, 0, 3), App.Rotation())
add_polygon(sketch3, [(-110, -501), (-20, -501), (-20, -491), (-58, -461), (-109, -491)])
add_polygon(sketch3, [(-383, -315), (-383, -591), (-376, -591), (-376, -315)])
add_polygon(sketch3, [(246, -315), (246, -591), (253, -591), (253, -315)])
sketch3.addConstraint(Sketcher.Constraint("Horizontal", 0))
sketch3.addConstraint(Sketcher.Constraint("Vertical", 1))
sketch3.addConstraint(Sketcher.Constraint("Vertical", 5))
sketch3.addConstraint(Sketcher.Constraint("Horizontal", 6))
sketch3.addConstraint(Sketcher.Constraint("Vertical", 7))
sketch3.addConstraint(Sketcher.Constraint("Horizontal", 8))
sketch3.addConstraint(Sketcher.Constraint("Vertical", 9))
sketch3.addConstraint(Sketcher.Constraint("Horizontal", 10))
sketch3.addConstraint(Sketcher.Constraint("Vertical", 11))
sketch3.addConstraint(Sketcher.Constraint("Horizontal", 12))
sketch3.addConstraint(Sketcher.Constraint("Horizontal", 1, 2, 3, 2))
sketch3.addConstraint(Sketcher.Constraint("Horizontal", 6, 2, 9, 2))
sketch3.addConstraint(Sketcher.Constraint("Horizontal", 8, 2, 11, 2))
sketch3.addConstraint(Sketcher.Constraint("Equal", 8, 10))
sketch3.addConstraint(Sketcher.Constraint("DistanceX", 6, 1, 6, 2, Q("6.5 mm")))
sketch3.addConstraint(Sketcher.Constraint("DistanceY", 5, 2, 5, 1, Q("275.47 mm")))
sketch3.addConstraint(Sketcher.Constraint("Distance", 2, Q("48.445498 mm")))
sketch3.addConstraint(Sketcher.Constraint("DistanceX", 0, 1, 0, 2, Q("89.884931 mm")))
sketch3.addConstraint(Sketcher.Constraint("DistanceY", 1, 2, 2, 2, Q("29.983199 mm")))
sketch3.addConstraint(Sketcher.Constraint("DistanceX", 5, 2, 3, 2, Q("273.601801 mm")))
sketch3.addConstraint(Sketcher.Constraint("DistanceX", 3, 2, 9, 2, Q("355.198199 mm")))
sketch3.addConstraint(Sketcher.Constraint("DistanceY", 1, 1, 1, 2, Q("9.894156 mm")))
sketch3.addConstraint(Sketcher.Constraint("DistanceX", 0, 2, -1, 1, Q("20.024881 mm")))
sketch3.addConstraint(Sketcher.Constraint("DistanceY", 0, 2, -1, 1, Q("500.557261 mm")))
sketch3.addConstraint(Sketcher.Constraint("DistanceX", 3, 2, 2, 2, Q("50.93841 mm")))
sketch3.addConstraint(Sketcher.Constraint("DistanceY", 5, 2, -1, 1, Q("590.744933 mm")))
sketch3.setExpression("Constraints[27]", "Params.sketch3_width")
sketch3.setExpression("Constraints[28]", "Params.sketch3_height")
pad2 = body.newObject("PartDesign::Pad", "Pad001")
pad2.Profile = sketch3
pad2.setExpression("Length", "Params.pad2_length")
pad2.Reversed = True

sketch4 = body.newObject("Sketcher::SketchObject", "Sketch003")
sketch4.AttachmentSupport = (doc.getObject("XY_Plane"), [""])
sketch4.MapMode = "FlatFace"
sketch4.AttachmentOffset = App.Placement(V(0, 0, 3), App.Rotation())
add_polygon(sketch4, [(-366, -619), (-366, -634), (236, -634), (236, -619)])
sketch4.addConstraint(Sketcher.Constraint("Vertical", 0))
sketch4.addConstraint(Sketcher.Constraint("Horizontal", 1))
sketch4.addConstraint(Sketcher.Constraint("Vertical", 2))
sketch4.addConstraint(Sketcher.Constraint("Horizontal", 3))
sketch4.addConstraint(Sketcher.Constraint("DistanceY", 0, 2, 0, 1, Q("15 mm")))
sketch4.addConstraint(Sketcher.Constraint("DistanceX", 1, 1, 1, 2, Q("602.3 mm")))
sketch4.addConstraint(Sketcher.Constraint("DistanceX", 0, 2, -1, 1, Q("366.117346 mm")))
sketch4.addConstraint(Sketcher.Constraint("DistanceY", 0, 2, -1, 1, Q("633.744933 mm")))
sketch4.setExpression("Constraints[8]", "Params.sketch4_height")
sketch4.setExpression("Constraints[9]", "Params.sketch4_width")
pad3 = body.newObject("PartDesign::Pad", "Pad002")
pad3.Profile = sketch4
pad3.setExpression("Length", "Params.pad3_length")
pad3.Reversed = True
doc.recompute()

fillet = body.newObject("PartDesign::Fillet", "Fillet")
fillet.Base = (pad3, edges_at(pad3, [
    (234.183, -287.275, 1.5),
    (-364.117, -287.275, 1.5),
    (252.683, -315.275, 1.5),
    (252.683, -590.745, 1.5),
    (-382.617, -590.745, 1.5),
    (-382.617, -315.275, 1.5),
    (-366.117, -633.745, 1.5),
    (236.183, -633.745, 1.5),
    (-20.025, -500.557, 1.5),
    (-109.91, -500.557, 1.5),
]))
fillet.setExpression("Radius", "Params.fillet_radius")

doc.recompute()
